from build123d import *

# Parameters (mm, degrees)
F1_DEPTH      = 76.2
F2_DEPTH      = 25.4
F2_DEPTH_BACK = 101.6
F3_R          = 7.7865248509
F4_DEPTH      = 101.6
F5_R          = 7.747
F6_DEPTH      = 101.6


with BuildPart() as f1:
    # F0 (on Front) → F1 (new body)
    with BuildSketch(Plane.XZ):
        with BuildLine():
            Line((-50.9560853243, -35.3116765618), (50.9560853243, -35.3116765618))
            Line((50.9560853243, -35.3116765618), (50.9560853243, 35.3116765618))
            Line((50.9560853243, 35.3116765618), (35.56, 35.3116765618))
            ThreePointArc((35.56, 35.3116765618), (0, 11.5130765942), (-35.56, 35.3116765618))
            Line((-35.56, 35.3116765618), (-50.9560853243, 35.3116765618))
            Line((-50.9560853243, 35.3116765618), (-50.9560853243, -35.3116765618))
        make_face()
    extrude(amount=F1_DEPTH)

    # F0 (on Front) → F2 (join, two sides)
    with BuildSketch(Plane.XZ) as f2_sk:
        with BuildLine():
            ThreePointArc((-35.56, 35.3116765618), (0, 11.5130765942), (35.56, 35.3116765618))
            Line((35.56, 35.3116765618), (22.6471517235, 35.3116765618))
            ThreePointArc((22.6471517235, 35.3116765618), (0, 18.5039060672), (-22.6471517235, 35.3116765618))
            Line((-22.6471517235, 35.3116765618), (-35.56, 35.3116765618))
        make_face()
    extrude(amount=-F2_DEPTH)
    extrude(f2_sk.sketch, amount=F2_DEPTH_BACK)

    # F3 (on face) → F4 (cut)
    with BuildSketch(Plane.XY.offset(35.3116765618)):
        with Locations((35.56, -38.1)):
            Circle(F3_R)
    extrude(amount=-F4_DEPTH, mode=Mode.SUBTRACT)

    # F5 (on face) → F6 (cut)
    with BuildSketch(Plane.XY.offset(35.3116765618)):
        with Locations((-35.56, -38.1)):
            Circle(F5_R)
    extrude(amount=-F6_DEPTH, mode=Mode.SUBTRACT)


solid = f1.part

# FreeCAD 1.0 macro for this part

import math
import FreeCAD as App
import Part
import Sketcher

V = App.Vector
Q = App.Units.Quantity

doc = App.newDocument("Part")
body = doc.addObject("PartDesign::Body", "Body")

sketch1 = doc.addObject("Sketcher::SketchObject", "Sketch")
body.addObject(sketch1)
sketch1.AttachmentSupport = (doc.XZ_Plane, [""])
sketch1.MapMode = "FlatFace"
sketch1.addGeometry(Part.LineSegment(V(-50.956085, -35.311677, 0), V(50.956085, -35.311677, 0)), False)
sketch1.addGeometry(Part.LineSegment(V(50.956085, -35.311677, 0), V(50.956085, 35.311677, 0)), False)
sketch1.addGeometry(Part.LineSegment(V(50.956085, 35.311677, 0), V(35.56, 35.311677, 0)), False)
sketch1.addGeometry(Part.ArcOfCircle(Part.Circle(V(0, 49.979351, 0), V(0, 0, 1), 38.466275), math.radians(-157.584989), math.radians(-22.415011)), False)
sketch1.addGeometry(Part.LineSegment(V(-35.56, 35.311677, 0), V(-50.956085, 35.311677, 0)), False)
sketch1.addGeometry(Part.LineSegment(V(-50.956085, 35.311677, 0), V(-50.956085, -35.311677, 0)), False)
sketch1.addConstraint(Sketcher.Constraint("Coincident", 0, 2, 1, 1))
sketch1.addConstraint(Sketcher.Constraint("Coincident", 1, 2, 2, 1))
sketch1.addConstraint(Sketcher.Constraint("Coincident", 2, 2, 3, 2))
sketch1.addConstraint(Sketcher.Constraint("Coincident", 3, 1, 4, 1))
sketch1.addConstraint(Sketcher.Constraint("Coincident", 4, 2, 5, 1))
sketch1.addConstraint(Sketcher.Constraint("Coincident", 5, 2, 0, 1))
sketch1.addConstraint(Sketcher.Constraint("Horizontal", 0))
sketch1.addConstraint(Sketcher.Constraint("Vertical", 1))
sketch1.addConstraint(Sketcher.Constraint("Horizontal", 2))
sketch1.addConstraint(Sketcher.Constraint("Horizontal", 4))
sketch1.addConstraint(Sketcher.Constraint("Vertical", 5))
sketch1.addConstraint(Sketcher.Constraint("Symmetric", 0, 2, 4, 2, -1, 1))
sketch1.addConstraint(Sketcher.Constraint("Symmetric", 2, 2, 3, 1, -2))
sketch1.addConstraint(Sketcher.Constraint("DistanceX", -1, 1, 2, 2, Q("1.4 in")))
sketch1.addConstraint(Sketcher.Constraint("Radius", 3, Q("38.466275 mm")))
sketch1.addConstraint(Sketcher.Constraint("DistanceX", 0, 1, 0, 2, Q("101.912171 mm")))
sketch1.addConstraint(Sketcher.Constraint("DistanceY", 1, 1, 1, 2, Q("70.623353 mm")))
pad1 = doc.addObject("PartDesign::Pad", "Pad")
body.addObject(pad1)
pad1.Profile = sketch1
pad1.Length = Q("3 in")

sketch2 = doc.addObject("Sketcher::SketchObject", "Sketch001")
body.addObject(sketch2)
sketch2.AttachmentSupport = (doc.XZ_Plane, [""])
sketch2.MapMode = "FlatFace"
sketch2.addGeometry(Part.ArcOfCircle(Part.Circle(V(0, 49.979351, 0), V(0, 0, 1), 38.466275), math.radians(-157.584989), math.radians(-22.415011)), False)
sketch2.addGeometry(Part.LineSegment(V(35.56, 35.311677, 0), V(22.647152, 35.311677, 0)), False)
sketch2.addGeometry(Part.ArcOfCircle(Part.Circle(V(0, 42.165421, 0), V(0, 0, 1), 23.661515), math.radians(-163.162524), math.radians(-16.837476)), False)
sketch2.addGeometry(Part.LineSegment(V(-22.647152, 35.311677, 0), V(-35.56, 35.311677, 0)), False)
sketch2.addConstraint(Sketcher.Constraint("Coincident", 0, 2, 1, 1))
sketch2.addConstraint(Sketcher.Constraint("Coincident", 1, 2, 2, 2))
sketch2.addConstraint(Sketcher.Constraint("Coincident", 2, 1, 3, 1))
sketch2.addConstraint(Sketcher.Constraint("Coincident", 3, 2, 0, 1))
sketch2.addConstraint(Sketcher.Constraint("Horizontal", 1))
sketch2.addConstraint(Sketcher.Constraint("Horizontal", 3))
sketch2.addConstraint(Sketcher.Constraint("Symmetric", 1, 2, 2, 1, -2))
sketch2.addConstraint(Sketcher.Constraint("PointOnObject", 0, 3, -2))
sketch2.addConstraint(Sketcher.Constraint("DistanceX", -1, 1, 0, 2, Q("1.4 in")))
sketch2.addConstraint(Sketcher.Constraint("Radius", 0, Q("38.466275 mm")))
sketch2.addConstraint(Sketcher.Constraint("Radius", 2, Q("23.661515 mm")))
sketch2.addConstraint(Sketcher.Constraint("DistanceX", 1, 2, 1, 1, Q("12.912848 mm")))
sketch2.addConstraint(Sketcher.Constraint("DistanceY", -1, 1, 0, 3, Q("49.979351 mm")))
pad2 = doc.addObject("PartDesign::Pad", "Pad001")
body.addObject(pad2)
pad2.Profile = sketch2
pad2.Type = "TwoLengths"
pad2.Length = Q("1 in")
pad2.Length2 = Q("4 in")
pad2.Reversed = True

sketch3 = doc.addObject("Sketcher::SketchObject", "Sketch002")
body.addObject(sketch3)
sketch3.AttachmentSupport = (doc.XY_Plane, [""])
sketch3.MapMode = "FlatFace"
sketch3.AttachmentOffset = App.Placement(V(0, 0, 35.311677), App.Rotation())
sketch3.addGeometry(Part.Circle(V(35.56, -38.1, 0), V(0, 0, 1), 7.786525), False)
sketch3.addConstraint(Sketcher.Constraint("DistanceX", -1, 1, 0, 3, Q("1.4 in")))
sketch3.addConstraint(Sketcher.Constraint("DistanceY", 0, 3, -1, 1, Q("1.5 in")))
sketch3.addConstraint(Sketcher.Constraint("Diameter", 0, Q("15.57305 mm")))
pocket1 = doc.addObject("PartDesign::Pocket", "Pocket")
body.addObject(pocket1)
pocket1.Profile = sketch3
pocket1.Length = Q("4 in")

sketch4 = doc.addObject("Sketcher::SketchObject", "Sketch003")
body.addObject(sketch4)
sketch4.AttachmentSupport = (doc.XY_Plane, [""])
sketch4.MapMode = "FlatFace"
sketch4.AttachmentOffset = App.Placement(V(0, 0, 35.311677), App.Rotation())
sketch4.addGeometry(Part.Circle(V(-35.56, -38.1, 0), V(0, 0, 1), 7.747), False)
sketch4.addConstraint(Sketcher.Constraint("Diameter", 0, Q("0.61 in")))
sketch4.addConstraint(Sketcher.Constraint("DistanceX", 0, 3, -1, 1, Q("1.4 in")))
sketch4.addConstraint(Sketcher.Constraint("DistanceY", 0, 3, -1, 1, Q("1.5 in")))
pocket2 = doc.addObject("PartDesign::Pocket", "Pocket001")
body.addObject(pocket2)
pocket2.Profile = sketch4
pocket2.Length = Q("4 in")

doc.recompute()
